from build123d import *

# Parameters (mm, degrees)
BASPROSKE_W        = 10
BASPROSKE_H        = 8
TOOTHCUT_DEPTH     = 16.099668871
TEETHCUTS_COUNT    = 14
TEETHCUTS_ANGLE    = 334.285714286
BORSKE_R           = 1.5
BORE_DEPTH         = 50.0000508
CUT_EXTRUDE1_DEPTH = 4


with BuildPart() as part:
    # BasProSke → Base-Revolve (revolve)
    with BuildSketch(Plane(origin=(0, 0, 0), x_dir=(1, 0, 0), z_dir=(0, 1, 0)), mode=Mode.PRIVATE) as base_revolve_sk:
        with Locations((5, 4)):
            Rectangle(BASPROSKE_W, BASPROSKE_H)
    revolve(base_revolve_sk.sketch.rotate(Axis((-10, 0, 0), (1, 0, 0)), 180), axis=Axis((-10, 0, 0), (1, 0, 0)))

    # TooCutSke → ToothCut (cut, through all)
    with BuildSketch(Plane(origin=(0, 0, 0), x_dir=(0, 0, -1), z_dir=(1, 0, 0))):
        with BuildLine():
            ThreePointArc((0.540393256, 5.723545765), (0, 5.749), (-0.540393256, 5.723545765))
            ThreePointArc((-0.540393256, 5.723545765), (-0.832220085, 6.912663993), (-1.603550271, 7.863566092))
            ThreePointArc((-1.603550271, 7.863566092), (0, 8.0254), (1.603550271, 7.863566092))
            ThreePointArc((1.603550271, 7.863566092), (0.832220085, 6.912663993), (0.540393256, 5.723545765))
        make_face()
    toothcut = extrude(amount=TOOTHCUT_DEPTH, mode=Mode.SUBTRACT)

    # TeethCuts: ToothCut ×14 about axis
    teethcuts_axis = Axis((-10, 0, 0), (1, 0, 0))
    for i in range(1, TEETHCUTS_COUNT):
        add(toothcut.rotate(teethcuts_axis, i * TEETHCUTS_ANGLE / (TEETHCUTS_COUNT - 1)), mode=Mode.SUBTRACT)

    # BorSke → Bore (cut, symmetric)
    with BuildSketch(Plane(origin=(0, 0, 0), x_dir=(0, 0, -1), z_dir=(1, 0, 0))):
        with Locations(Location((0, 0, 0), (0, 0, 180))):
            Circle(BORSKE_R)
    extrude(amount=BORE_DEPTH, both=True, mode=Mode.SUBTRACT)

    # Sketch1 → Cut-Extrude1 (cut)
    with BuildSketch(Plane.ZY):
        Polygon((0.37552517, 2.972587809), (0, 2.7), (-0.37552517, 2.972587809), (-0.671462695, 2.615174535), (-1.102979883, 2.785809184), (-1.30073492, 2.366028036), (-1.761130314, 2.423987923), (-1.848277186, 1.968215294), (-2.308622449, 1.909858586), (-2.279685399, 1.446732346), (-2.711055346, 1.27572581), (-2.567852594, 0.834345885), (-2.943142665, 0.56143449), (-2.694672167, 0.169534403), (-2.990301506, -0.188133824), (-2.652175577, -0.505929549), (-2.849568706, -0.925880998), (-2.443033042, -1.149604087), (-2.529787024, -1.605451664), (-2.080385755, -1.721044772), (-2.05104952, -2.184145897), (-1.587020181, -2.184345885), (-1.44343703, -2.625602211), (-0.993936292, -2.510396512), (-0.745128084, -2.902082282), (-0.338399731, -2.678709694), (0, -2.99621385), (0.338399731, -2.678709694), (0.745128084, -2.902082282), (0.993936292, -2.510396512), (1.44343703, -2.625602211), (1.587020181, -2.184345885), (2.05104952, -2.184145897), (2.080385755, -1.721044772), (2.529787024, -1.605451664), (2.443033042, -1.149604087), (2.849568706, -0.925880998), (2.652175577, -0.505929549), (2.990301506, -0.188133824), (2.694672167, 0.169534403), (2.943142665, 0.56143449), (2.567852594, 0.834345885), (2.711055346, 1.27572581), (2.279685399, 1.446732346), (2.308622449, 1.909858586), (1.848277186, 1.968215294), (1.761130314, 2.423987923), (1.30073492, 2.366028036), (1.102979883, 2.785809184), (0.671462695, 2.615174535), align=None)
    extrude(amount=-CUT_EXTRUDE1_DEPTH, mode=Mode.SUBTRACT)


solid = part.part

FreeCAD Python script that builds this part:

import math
import FreeCAD as App
import Part
import Sketcher
from FreeCAD import Vector


def add_polygon(sketch, points):
    """Adds a closed chain of lines whose ends are joined by coincident constraints."""
    first, n = sketch.GeometryCount, len(points)
    for a, b in zip(points, points[1:] + points[:1]):
        sketch.addGeometry(Part.LineSegment(App.Vector(*a, 0), App.Vector(*b, 0)), False)
    for i in range(n):
        sketch.addConstraint(Sketcher.Constraint("Coincident", first + i, 2, first + (i + 1) % n, 1))

doc = App.newDocument("Part")
params = doc.addObject("Spreadsheet::Sheet", "Params")
for row, (alias, value) in enumerate([
    ("sketch1_width", "10 mm"),
    ("sketch1_height", "8 mm"),
    ("revolution_angle", "360 deg"),
    ("sketch2_radius", "2.8 mm"),
    ("sketch3_diameter", "3 mm"),
    ("pocket2_length", "100.000102 mm"),
    ("pocket3_length", "4 mm"),
], start=1):
    params.set(f"A{row}", alias)
    params.set(f"B{row}", "=" + value)
    params.setAlias(f"B{row}", alias)

body = doc.addObject("PartDesign::Body", "Body")

# Sketch on XZ plane
sketch1 = doc.addObject("Sketcher::SketchObject", "Sketch")
body.addObject(sketch1)
sketch1.AttachmentSupport = (doc.XZ_Plane, [""])
sketch1.MapMode = "FlatFace"
add_polygon(sketch1, [(0, -8), (0, 0), (10, 0), (10, -8)])  # lines 0-3
sketch1.addConstraint([
    Sketcher.Constraint("Vertical", 0),
    Sketcher.Constraint("Horizontal", 1),
    Sketcher.Constraint("Vertical", 2),
    Sketcher.Constraint("Horizontal", 3),
    Sketcher.Constraint("Coincident", 0, 2, -1, 1),
    Sketcher.Constraint("DistanceX", 1, 1, 1, 2, 10.0),
    Sketcher.Constraint("DistanceY", 0, 1, 0, 2, 8.0),
])
sketch1.setExpression("Constraints[9]", "Params.sketch1_width")
sketch1.setExpression("Constraints[10]", "Params.sketch1_height")
revolution = doc.addObject("PartDesign::Revolution", "Revolution")
body.addObject(revolution)
revolution.Profile = sketch1
revolution.ReferenceAxis = (sketch1, ["H_Axis"])
revolution.setExpression("Angle", "Params.revolution_angle")

# Sketch on YZ plane
sketch2 = doc.addObject("Sketcher::SketchObject", "Sketch001")
body.addObject(sketch2)
sketch2.AttachmentSupport = (doc.YZ_Plane, [""])
sketch2.MapMode = "FlatFace"
sketch2.addGeometry([
    Part.ArcOfCircle(Part.Circle(Vector(0, 0, 0), Vector(0, 0, 1), 5.7), math.radians(-5.39), math.radians(5.39)),
    Part.ArcOfCircle(Part.Circle(Vector(5.7, -3.3, 0), Vector(0, 0, 1), 2.8), math.radians(38), math.radians(89)),
    Part.ArcOfCircle(Part.Circle(Vector(0, 0, 0), Vector(0, 0, 1), 8), math.radians(-12), math.radians(12)),
    Part.ArcOfCircle(Part.Circle(Vector(5.7, 3.3, 0), Vector(0, 0, 1), 2.8), math.radians(-89), math.radians(-38)),
], False)
sketch2.addConstraint([
    Sketcher.Constraint("Coincident", 0, 1, 1, 2),
    Sketcher.Constraint("Coincident", 1, 1, 2, 1),
    Sketcher.Constraint("Coincident", 2, 2, 3, 2),
    Sketcher.Constraint("Coincident", 3, 1, 0, 2),
    Sketcher.Constraint("Coincident", 0, 3, -1, 1),
    Sketcher.Constraint("Coincident", 2, 3, -1, 1),
    Sketcher.Constraint("Equal", 1, 3),
    Sketcher.Constraint("Symmetric", 1, 3, 3, 3, -1),
    Sketcher.Constraint("Radius", 1, 2.8),
    Sketcher.Constraint("Radius", 0, 5.749),
    Sketcher.Constraint("Radius", 2, 8.0254),
    Sketcher.Constraint("DistanceY", 1, 1, 2, 2, 3.207101),
    Sketcher.Constraint("DistanceY", 1, 3, -1, 1, 3.33982),
])
sketch2.setExpression("Constraints[8]", "Params.sketch2_radius")
pocket1 = doc.addObject("PartDesign::Pocket", "Pocket")
body.addObject(pocket1)
pocket1.Profile = sketch2
pocket1.Type = "ThroughAll"
pocket1.Reversed = True
doc.recompute()

polarpattern = doc.addObject("PartDesign::PolarPattern", "PolarPattern")
body.addObject(polarpattern)
polarpattern.Originals = [pocket1]
polarpattern.Axis = (doc.X_Axis, [""])
polarpattern.Angle = 360
polarpattern.Occurrences = 14
body.Tip = polarpattern

# Sketch on YZ plane
sketch3 = doc.addObject("Sketcher::SketchObject", "Sketch002")
body.addObject(sketch3)
sketch3.AttachmentSupport = (doc.YZ_Plane, [""])
sketch3.MapMode = "FlatFace"
sketch3.addGeometry(Part.Circle(Vector(0, 0, 0), Vector(0, 0, 1), 1.5), False)
sketch3.addConstraint([
    Sketcher.Constraint("Coincident", 0, 3, -1, 1),
    Sketcher.Constraint("Diameter", 0, 3.0),
])
sketch3.setExpression("Constraints[1]", "Params.sketch3_diameter")
pocket2 = doc.addObject("PartDesign::Pocket", "Pocket001")
body.addObject(pocket2)
pocket2.Profile = sketch3
pocket2.setExpression("Length", "Params.pocket2_length")
pocket2.Midplane = True

# Sketch on YZ plane
sketch4 = doc.addObject("Sketcher::SketchObject", "Sketch003")
body.addObject(sketch4)
sketch4.AttachmentSupport = (doc.YZ_Plane, [""])
sketch4.MapMode = "FlatFace"
add_polygon(sketch4, [(2.97, 0.38), (2.7, 0), (2.97, -0.38), (2.62, -0.67), (2.79, -1.1), (2.37, -1.3), (2.42, -1.76), (1.97, -1.85), (1.91, -2.31), (1.45, -2.28), (1.28, -2.71), (0.83, -2.57), (0.56, -2.94), (0.17, -2.69), (-0.19, -2.99), (-0.51, -2.65), (-0.93, -2.85), (-1.15, -2.44), (-1.61, -2.53), (-1.72, -2.08), (-2.18, -2.05), (-2.18, -1.59), (-2.63, -1.44), (-2.51, -0.99), (-2.9, -0.75), (-2.68, -0.34), (-3, 0), (-2.68, 0.34), (-2.9, 0.75), (-2.51, 0.99), (-2.63, 1.44), (-2.18, 1.59), (-2.18, 2.05), (-1.72, 2.08), (-1.61, 2.53), (-1.15, 2.44), (-0.93, 2.85), (-0.51, 2.65), (-0.19, 2.99), (0.17, 2.69), (0.56, 2.94), (0.83, 2.57), (1.28, 2.71), (1.45, 2.28), (1.91, 2.31), (1.97, 1.85), (2.42, 1.76), (2.37, 1.3), (2.79, 1.1), (2.62, 0.67)])  # lines 0-49
sketch4.addConstraint([
    Sketcher.Constraint("Symmetric", 24, 2, 26, 2, -1),
    Sketcher.Constraint("Symmetric", 23, 2, 27, 2, -1),
    Sketcher.Constraint("Symmetric", 22, 2, 28, 2, -1),
    Sketcher.Constraint("Symmetric", 21, 2, 29, 2, -1),
    Sketcher.Constraint("Symmetric", 20, 2, 30, 2, -1),
    Sketcher.Constraint("Symmetric", 19, 2, 31, 2, -1),
    Sketcher.Constraint("Symmetric", 18, 2, 32, 2, -1),
    Sketcher.Constraint("Symmetric", 17, 2, 33, 2, -1),
    Sketcher.Constraint("Symmetric", 16, 2, 34, 2, -1),
    Sketcher.Constraint("Symmetric", 15, 2, 35, 2, -1),
    Sketcher.Constraint("Symmetric", 14, 2, 36, 2, -1),
    Sketcher.Constraint("Symmetric", 13, 2, 37, 2, -1),
    Sketcher.Constraint("Symmetric", 12, 2, 38, 2, -1),
    Sketcher.Constraint("Symmetric", 11, 2, 39, 2, -1),
    Sketcher.Constraint("Symmetric", 10, 2, 40, 2, -1),
    Sketcher.Constraint("Symmetric", 9, 2, 41, 2, -1),
    Sketcher.Constraint("Symmetric", 8, 2, 42, 2, -1),
    Sketcher.Constraint("Symmetric", 7, 2, 43, 2, -1),
    Sketcher.Constraint("Symmetric", 6, 2, 44, 2, -1),
    Sketcher.Constraint("Symmetric", 5, 2, 45, 2, -1),
    Sketcher.Constraint("Symmetric", 4, 2, 46, 2, -1),
    Sketcher.Constraint("Symmetric", 3, 2, 47, 2, -1),
    Sketcher.Constraint("Symmetric", 2, 2, 48, 2, -1),
    Sketcher.Constraint("Symmetric", 1, 2, 49, 2, -1),
    Sketcher.Constraint("PointOnObject", 0, 2, -1),
    Sketcher.Constraint("PointOnObject", 25, 2, -1),
    Sketcher.Constraint("Equal", 1, 2),
    Sketcher.Constraint("Equal", 2, 3),
    Sketcher.Constraint("Equal", 3, 4),
    Sketcher.Constraint("Equal", 4, 5),
    Sketcher.Constraint("Equal", 5, 6),
    Sketcher.Constraint("Equal", 6, 7),
    Sketcher.Constraint("Equal", 7, 8),
    Sketcher.Constraint("Equal", 8, 9),
    Sketcher.Constraint("Equal", 9, 10),
    Sketcher.Constraint("Equal", 10, 11),
    Sketcher.Constraint("Equal", 11, 12),
    Sketcher.Constraint("Equal", 12, 13),
    Sketcher.Constraint("Equal", 13, 14),
    Sketcher.Constraint("Equal", 14, 15),
    Sketcher.Constraint("Equal", 15, 16),
    Sketcher.Constraint("Equal", 16, 17),
    Sketcher.Constraint("Equal", 17, 18),
    Sketcher.Constraint("Equal", 18, 19),
    Sketcher.Constraint("Equal", 19, 20),
    Sketcher.Constraint("Equal", 20, 21),
    Sketcher.Constraint("Equal", 21, 22),
    Sketcher.Constraint("Equal", 22, 23),
    Sketcher.Constraint("Equal", 23, 24),
    Sketcher.Constraint("Equal", 24, 25),
    Sketcher.Constraint("DistanceX", -1, 1, 0, 2, 2.7),
    Sketcher.Constraint("DistanceX", 21, 2, 16, 2, 1.475998),
    Sketcher.Constraint("DistanceY", 13, 2, -1, 1, 2.990302),
    Sketcher.Constraint("DistanceY", 24, 2, -1, 1, 0.3384),
    Sketcher.Constraint("DistanceX", 5, 2, 1, 2, 0.5486),
    Sketcher.Constraint("DistanceX", 12, 2, 11, 2, 0.3919),
    Sketcher.Constraint("DistanceY", 17, 2, 18, 2, 0.449401),
    Sketcher.Constraint("DistanceX", 19, 2, 18, 2, 0.463101),
    Sketcher.Constraint("DistanceX", 20, 2, 19, 2, 0.0002),
    Sketcher.Constraint("DistanceY", 21, 2, 22, 2, 0.449501),
    Sketcher.Constraint("Distance", 0, 0.464029),
    Sketcher.Constraint("DistanceX", -1, 1, 3, 2, 2.785809),
    Sketcher.Constraint("DistanceY", 3, 2, -1, 1, 1.10298),
    Sketcher.Constraint("DistanceX", -1, 1, 4, 2, 2.366028),
    Sketcher.Constraint("DistanceY", 5, 2, -1, 1, 1.76113),
    Sketcher.Constraint("DistanceX", -1, 1, 7, 2, 1.909859),
    Sketcher.Constraint("DistanceX", 14, 2, -1, 1, 0.50593),
    Sketcher.Constraint("DistanceX", 15, 2, -1, 1, 0.925881),
    Sketcher.Constraint("DistanceY", 15, 2, -1, 1, 2.849569),
    Sketcher.Constraint("DistanceX", 17, 2, -1, 1, 1.605452),
    Sketcher.Constraint("DistanceY", 19, 2, -1, 1, 2.05105),
    Sketcher.Constraint("DistanceY", 23, 2, -1, 1, 0.745128),
    Sketcher.Constraint("DistanceX", 6, 2, 2, 2, 0.646959),
    Sketcher.Constraint("DistanceY", 8, 2, 6, 2, 0.431408),
    Sketcher.Constraint("DistanceY", 9, 2, 8, 2, 0.43137),
    Sketcher.Constraint("DistanceX", 10, 2, 9, 2, 0.44138),
])
pocket3 = doc.addObject("PartDesign::Pocket", "Pocket002")
body.addObject(pocket3)
pocket3.Profile = sketch4
pocket3.setExpression("Length", "Params.pocket3_length")
pocket3.Reversed = True

doc.recompute()
